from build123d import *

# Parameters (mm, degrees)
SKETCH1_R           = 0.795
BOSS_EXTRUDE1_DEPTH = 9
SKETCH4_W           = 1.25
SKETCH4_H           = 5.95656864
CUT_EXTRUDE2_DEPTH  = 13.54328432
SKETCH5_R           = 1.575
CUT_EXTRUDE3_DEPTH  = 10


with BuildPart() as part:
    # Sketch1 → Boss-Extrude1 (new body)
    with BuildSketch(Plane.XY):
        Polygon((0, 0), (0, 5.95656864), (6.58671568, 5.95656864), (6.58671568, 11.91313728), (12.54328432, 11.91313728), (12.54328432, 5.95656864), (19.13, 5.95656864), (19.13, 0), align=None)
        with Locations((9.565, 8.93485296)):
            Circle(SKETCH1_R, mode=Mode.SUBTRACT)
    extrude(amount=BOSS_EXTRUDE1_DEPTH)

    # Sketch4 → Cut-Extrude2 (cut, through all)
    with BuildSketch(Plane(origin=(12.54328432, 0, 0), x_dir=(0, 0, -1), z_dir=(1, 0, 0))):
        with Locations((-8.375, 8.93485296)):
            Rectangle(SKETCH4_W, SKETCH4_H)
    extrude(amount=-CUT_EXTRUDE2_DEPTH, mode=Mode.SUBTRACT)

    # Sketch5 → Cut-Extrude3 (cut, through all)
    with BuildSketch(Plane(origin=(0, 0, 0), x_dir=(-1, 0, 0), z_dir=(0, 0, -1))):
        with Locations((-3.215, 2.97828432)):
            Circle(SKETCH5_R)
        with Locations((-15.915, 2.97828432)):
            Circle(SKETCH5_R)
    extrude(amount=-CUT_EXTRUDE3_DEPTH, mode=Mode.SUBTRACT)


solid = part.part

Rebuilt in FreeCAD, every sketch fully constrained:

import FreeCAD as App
import Part
import Sketcher
from FreeCAD import Vector
Q = App.Units.Quantity

doc = App.newDocument("Part")
body = doc.addObject("PartDesign::Body", "Body")

# Sketch on XY plane
sketch1 = doc.addObject("Sketcher::SketchObject", "Sketch")
body.addObject(sketch1)
sketch1.AttachmentSupport = (doc.XY_Plane, [""])
sketch1.MapMode = "FlatFace"
sketch1.addGeometry(Part.LineSegment(Vector(0, 6, 0), Vector(0, 0, 0)), False)
sketch1.addGeometry(Part.LineSegment(Vector(0, 0, 0), Vector(19.1, 0, 0)), False)
sketch1.addGeometry(Part.LineSegment(Vector(19.1, 0, 0), Vector(19.1, 6, 0)), False)
sketch1.addGeometry(Part.LineSegment(Vector(19.1, 6, 0), Vector(12.5, 6, 0)), False)
sketch1.addGeometry(Part.LineSegment(Vector(12.5, 6, 0), Vector(12.5, 11.9, 0)), False)
sketch1.addGeometry(Part.LineSegment(Vector(12.5, 11.9, 0), Vector(6.6, 11.9, 0)), False)
sketch1.addGeometry(Part.LineSegment(Vector(6.6, 11.9, 0), Vector(6.6, 6, 0)), False)
sketch1.addGeometry(Part.LineSegment(Vector(6.6, 6, 0), Vector(0, 6, 0)), False)
sketch1.addGeometry(Part.Circle(Vector(9.6, 8.9, 0), Vector(0, 0, 1), 0.8), False)
sketch1.addConstraint(Sketcher.Constraint("Coincident", 0, 2, 1, 1))
sketch1.addConstraint(Sketcher.Constraint("Coincident", 1, 2, 2, 1))
sketch1.addConstraint(Sketcher.Constraint("Coincident", 2, 2, 3, 1))
sketch1.addConstraint(Sketcher.Constraint("Coincident", 3, 2, 4, 1))
sketch1.addConstraint(Sketcher.Constraint("Coincident", 4, 2, 5, 1))
sketch1.addConstraint(Sketcher.Constraint("Coincident", 5, 2, 6, 1))
sketch1.addConstraint(Sketcher.Constraint("Coincident", 6, 2, 7, 1))
sketch1.addConstraint(Sketcher.Constraint("Coincident", 7, 2, 0, 1))
sketch1.addConstraint(Sketcher.Constraint("Vertical", 0))
sketch1.addConstraint(Sketcher.Constraint("Horizontal", 1))
sketch1.addConstraint(Sketcher.Constraint("Vertical", 2))
sketch1.addConstraint(Sketcher.Constraint("Horizontal", 3))
sketch1.addConstraint(Sketcher.Constraint("Vertical", 4))
sketch1.addConstraint(Sketcher.Constraint("Horizontal", 5))
sketch1.addConstraint(Sketcher.Constraint("Vertical", 6))
sketch1.addConstraint(Sketcher.Constraint("Horizontal", 7))
sketch1.addConstraint(Sketcher.Constraint("Coincident", 0, 2, -1, 1))
sketch1.addConstraint(Sketcher.Constraint("Horizontal", 3, 2, 6, 2))
sketch1.addConstraint(Sketcher.Constraint("Equal", 3, 7))
sketch1.addConstraint(Sketcher.Constraint("Equal", 5, 0))
sketch1.addConstraint(Sketcher.Constraint("Equal", 2, 4))
sketch1.addConstraint(Sketcher.Constraint("Diameter", 8, Q("1.59 mm")))
sketch1.addConstraint(Sketcher.Constraint("DistanceX", 1, 1, 1, 2, Q("19.13 mm")))
sketch1.addConstraint(Sketcher.Constraint("DistanceX", -1, 1, 8, 3, Q("9.565 mm")))
sketch1.addConstraint(Sketcher.Constraint("DistanceX", 5, 2, 5, 1, Q("5.956569 mm")))
sketch1.addConstraint(Sketcher.Constraint("DistanceY", -1, 1, 8, 3, Q("8.934853 mm")))
pad1 = doc.addObject("PartDesign::Pad", "Pad")
body.addObject(pad1)
pad1.Profile = sketch1
pad1.Length = 9

# Sketch on YZ plane
sketch2 = doc.addObject("Sketcher::SketchObject", "Sketch001")
body.addObject(sketch2)
sketch2.AttachmentSupport = (doc.YZ_Plane, [""])
sketch2.MapMode = "FlatFace"
sketch2.AttachmentOffset = App.Placement(Vector(0, 0, 12.543284), App.Rotation())
sketch2.addGeometry(Part.LineSegment(Vector(11.9, 9, 0), Vector(6, 9, 0)), False)
sketch2.addGeometry(Part.LineSegment(Vector(6, 9, 0), Vector(6, 7.8, 0)), False)
sketch2.addGeometry(Part.LineSegment(Vector(6, 7.8, 0), Vector(11.9, 7.8, 0)), False)
sketch2.addGeometry(Part.LineSegment(Vector(11.9, 7.8, 0), Vector(11.9, 9, 0)), False)
sketch2.addConstraint(Sketcher.Constraint("Coincident", 0, 2, 1, 1))
sketch2.addConstraint(Sketcher.Constraint("Coincident", 1, 2, 2, 1))
sketch2.addConstraint(Sketcher.Constraint("Coincident", 2, 2, 3, 1))
sketch2.addConstraint(Sketcher.Constraint("Coincident", 3, 2, 0, 1))
sketch2.addConstraint(Sketcher.Constraint("Horizontal", 0))
sketch2.addConstraint(Sketcher.Constraint("Vertical", 1))
sketch2.addConstraint(Sketcher.Constraint("Horizontal", 2))
sketch2.addConstraint(Sketcher.Constraint("Vertical", 3))
sketch2.addConstraint(Sketcher.Constraint("DistanceY", -1, 1, 0, 2, Q("9 mm")))
sketch2.addConstraint(Sketcher.Constraint("DistanceY", 1, 2, 1, 1, Q("1.25 mm")))
sketch2.addConstraint(Sketcher.Constraint("DistanceX", 0, 2, 0, 1, Q("5.956569 mm")))
sketch2.addConstraint(Sketcher.Constraint("DistanceX", -1, 1, 0, 2, Q("5.956569 mm")))
pocket1 = doc.addObject("PartDesign::Pocket", "Pocket")
body.addObject(pocket1)
pocket1.Profile = sketch2
pocket1.Type = "ThroughAll"

# Sketch on XY plane
sketch3 = doc.addObject("Sketcher::SketchObject", "Sketch002")
body.addObject(sketch3)
sketch3.AttachmentSupport = (doc.XY_Plane, [""])
sketch3.MapMode = "FlatFace"
sketch3.addGeometry(Part.Circle(Vector(3.2, 3, 0), Vector(0, 0, 1), 1.6), False)
sketch3.addGeometry(Part.Circle(Vector(15.9, 3, 0), Vector(0, 0, 1), 1.6), False)
sketch3.addConstraint(Sketcher.Constraint("Equal", 0, 1))
sketch3.addConstraint(Sketcher.Constraint("Horizontal", 0, 3, 1, 3))
sketch3.addConstraint(Sketcher.Constraint("Diameter", 0, Q("3.15 mm")))
sketch3.addConstraint(Sketcher.Constraint("DistanceX", 0, 3, 1, 3, Q("12.7 mm")))
sketch3.addConstraint(Sketcher.Constraint("DistanceX", -1, 1, 0, 3, Q("3.215 mm")))
sketch3.addConstraint(Sketcher.Constraint("DistanceY", -1, 1, 0, 3, Q("2.978284 mm")))
pocket2 = doc.addObject("PartDesign::Pocket", "Pocket001")
body.addObject(pocket2)
pocket2.Profile = sketch3
pocket2.Type = "ThroughAll"
pocket2.Reversed = True

doc.recompute()
